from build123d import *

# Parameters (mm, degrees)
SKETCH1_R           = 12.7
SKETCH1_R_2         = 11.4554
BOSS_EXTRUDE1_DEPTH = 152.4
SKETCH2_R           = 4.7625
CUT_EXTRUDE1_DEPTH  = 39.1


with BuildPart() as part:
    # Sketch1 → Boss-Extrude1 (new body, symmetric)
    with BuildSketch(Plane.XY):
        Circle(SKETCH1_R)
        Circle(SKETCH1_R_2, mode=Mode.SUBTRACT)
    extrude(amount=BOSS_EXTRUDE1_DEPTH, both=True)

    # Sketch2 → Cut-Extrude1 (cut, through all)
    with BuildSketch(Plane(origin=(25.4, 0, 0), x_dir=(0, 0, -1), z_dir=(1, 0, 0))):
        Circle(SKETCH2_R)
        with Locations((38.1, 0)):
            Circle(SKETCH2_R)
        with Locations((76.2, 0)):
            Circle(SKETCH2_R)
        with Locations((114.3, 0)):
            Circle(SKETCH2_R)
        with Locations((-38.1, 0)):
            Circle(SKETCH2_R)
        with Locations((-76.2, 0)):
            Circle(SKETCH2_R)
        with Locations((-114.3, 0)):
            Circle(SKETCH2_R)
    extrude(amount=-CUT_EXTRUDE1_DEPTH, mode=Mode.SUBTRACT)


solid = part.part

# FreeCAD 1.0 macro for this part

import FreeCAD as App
import Part
import Sketcher
from FreeCAD import Vector
Q = App.Units.Quantity

doc = App.newDocument("Part")
params = doc.addObject("Spreadsheet::Sheet", "Params")
for row, (alias, value) in enumerate([
    ("sketch1_diameter", "1 in"),
    ("sketch1_diameter2", "0.902 in"),
    ("pad1_length", "12 in"),
    ("sketch2_diameter", "0.375 in"),
], start=1):
    params.set(f"A{row}", alias)
    params.set(f"B{row}", "=" + value)
    params.setAlias(f"B{row}", alias)

body = doc.addObject("PartDesign::Body", "Body")

# Sketch on XY plane
sketch1 = doc.addObject("Sketcher::SketchObject", "Sketch")
body.addObject(sketch1)
sketch1.AttachmentSupport = (doc.XY_Plane, [""])
sketch1.MapMode = "FlatFace"
sketch1.addGeometry(Part.Circle(Vector(0, 0, 0), Vector(0, 0, 1), 13), False)
sketch1.addGeometry(Part.Circle(Vector(0, 0, 0), Vector(0, 0, 1), 11), False)
sketch1.addConstraint(Sketcher.Constraint("Coincident", 0, 3, -1, 1))
sketch1.addConstraint(Sketcher.Constraint("Coincident", 1, 3, -1, 1))
sketch1.addConstraint(Sketcher.Constraint("Diameter", 0, Q("1 in")))
sketch1.addConstraint(Sketcher.Constraint("Diameter", 1, Q("0.902 in")))
sketch1.setExpression("Constraints[2]", "Params.sketch1_diameter")
sketch1.setExpression("Constraints[3]", "Params.sketch1_diameter2")
pad1 = doc.addObject("PartDesign::Pad", "Pad")
body.addObject(pad1)
pad1.Profile = sketch1
pad1.setExpression("Length", "Params.pad1_length")
pad1.Midplane = True

# Sketch on YZ plane
sketch2 = doc.addObject("Sketcher::SketchObject", "Sketch001")
body.addObject(sketch2)
sketch2.AttachmentSupport = (doc.YZ_Plane, [""])
sketch2.MapMode = "FlatFace"
sketch2.AttachmentOffset = App.Placement(Vector(0, 0, 1 * 25.4), App.Rotation())
sketch2.addGeometry(Part.Circle(Vector(0, 0, 0), Vector(0, 0, 1), 4.8), False)
sketch2.addGeometry(Part.Circle(Vector(0, -38.1, 0), Vector(0, 0, 1), 4.8), False)
sketch2.addGeometry(Part.Circle(Vector(0, -76.2, 0), Vector(0, 0, 1), 4.8), False)
sketch2.addGeometry(Part.Circle(Vector(0, -114.3, 0), Vector(0, 0, 1), 4.8), False)
sketch2.addGeometry(Part.Circle(Vector(0, 38.1, 0), Vector(0, 0, 1), 4.8), False)
sketch2.addGeometry(Part.Circle(Vector(0, 76.2, 0), Vector(0, 0, 1), 4.8), False)
sketch2.addGeometry(Part.Circle(Vector(0, 114.3, 0), Vector(0, 0, 1), 4.8), False)
sketch2.addConstraint(Sketcher.Constraint("Coincident", 0, 3, -1, 1))
sketch2.addConstraint(Sketcher.Constraint("Equal", 0, 1))
sketch2.addConstraint(Sketcher.Constraint("Equal", 1, 2))
sketch2.addConstraint(Sketcher.Constraint("Equal", 2, 3))
sketch2.addConstraint(Sketcher.Constraint("Equal", 3, 4))
sketch2.addConstraint(Sketcher.Constraint("Equal", 4, 5))
sketch2.addConstraint(Sketcher.Constraint("Equal", 5, 6))
sketch2.addConstraint(Sketcher.Constraint("Symmetric", 1, 3, 4, 3, -1, 1))
sketch2.addConstraint(Sketcher.Constraint("Symmetric", 2, 3, 5, 3, -1, 1))
sketch2.addConstraint(Sketcher.Constraint("Symmetric", 3, 3, 6, 3, -1, 1))
sketch2.addConstraint(Sketcher.Constraint("PointOnObject", 1, 3, -2))
sketch2.addConstraint(Sketcher.Constraint("PointOnObject", 2, 3, -2))
sketch2.addConstraint(Sketcher.Constraint("PointOnObject", 3, 3, -2))
sketch2.addConstraint(Sketcher.Constraint("Diameter", 0, Q("0.375 in")))
sketch2.addConstraint(Sketcher.Constraint("DistanceY", 2, 3, -1, 1, Q("3 in")))
sketch2.addConstraint(Sketcher.Constraint("DistanceY", 3, 3, 1, 3, Q("3 in")))
sketch2.addConstraint(Sketcher.Constraint("DistanceY", 1, 3, 4, 3, Q("3 in")))
sketch2.setExpression("Constraints[13]", "Params.sketch2_diameter")
pocket1 = doc.addObject("PartDesign::Pocket", "Pocket")
body.addObject(pocket1)
pocket1.Profile = sketch2
pocket1.Type = "ThroughAll"

doc.recompute()
